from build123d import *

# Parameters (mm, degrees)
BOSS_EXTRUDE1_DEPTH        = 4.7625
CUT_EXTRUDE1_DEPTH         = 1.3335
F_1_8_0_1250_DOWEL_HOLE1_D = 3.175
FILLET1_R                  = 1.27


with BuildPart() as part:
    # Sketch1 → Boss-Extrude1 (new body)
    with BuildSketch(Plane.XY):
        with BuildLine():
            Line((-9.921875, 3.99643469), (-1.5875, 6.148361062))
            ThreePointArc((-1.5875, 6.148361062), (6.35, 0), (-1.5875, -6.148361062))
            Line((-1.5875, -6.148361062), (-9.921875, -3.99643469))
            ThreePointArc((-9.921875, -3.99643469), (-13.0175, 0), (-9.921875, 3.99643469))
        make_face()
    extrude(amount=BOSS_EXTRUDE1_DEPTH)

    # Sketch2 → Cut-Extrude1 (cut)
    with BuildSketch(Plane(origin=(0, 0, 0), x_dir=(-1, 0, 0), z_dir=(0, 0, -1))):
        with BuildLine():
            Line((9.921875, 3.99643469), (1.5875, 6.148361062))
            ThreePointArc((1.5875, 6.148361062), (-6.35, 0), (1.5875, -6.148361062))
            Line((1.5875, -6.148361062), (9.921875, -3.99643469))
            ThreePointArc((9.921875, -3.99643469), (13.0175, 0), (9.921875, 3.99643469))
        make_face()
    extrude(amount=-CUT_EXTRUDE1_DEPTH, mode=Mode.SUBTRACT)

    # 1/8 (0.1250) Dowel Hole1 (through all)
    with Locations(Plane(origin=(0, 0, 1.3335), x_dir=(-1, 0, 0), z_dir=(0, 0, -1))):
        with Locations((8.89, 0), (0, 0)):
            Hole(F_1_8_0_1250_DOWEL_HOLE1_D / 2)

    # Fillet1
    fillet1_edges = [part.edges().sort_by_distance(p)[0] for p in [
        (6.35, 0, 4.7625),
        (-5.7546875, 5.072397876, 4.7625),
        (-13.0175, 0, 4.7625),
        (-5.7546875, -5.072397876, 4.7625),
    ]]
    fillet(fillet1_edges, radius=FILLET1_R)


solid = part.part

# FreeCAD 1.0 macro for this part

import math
import FreeCAD as App
import Part
import Sketcher
Q = App.Units.Quantity


def edges_at(feature, points):
    """Names of the edges that pass closest to the given points."""
    edges = feature.Shape.Edges
    near = lambda p: min(range(len(edges)), key=lambda i: edges[i].distToShape(Part.Vertex(*p))[0])
    return sorted({f"Edge{near(p) + 1}" for p in points})

doc = App.newDocument("Part")
params = doc.addObject("Spreadsheet::Sheet", "Params")
for row, (alias, value) in enumerate([
    ("sketch1_radius", "0.25 in"),
    ("pad1_length", "0.1875 in"),
    ("sketch2_radius", "0.25 in"),
    ("pocket1_length", "0.0525 in"),
    ("sketch3_diameter", "0.125 in"),
    ("hole_diameter", "0.125 in"),
    ("fillet_radius", "0.05 in"),
], start=1):
    params.set(f"A{row}", alias)
    params.set(f"B{row}", "=" + value)
    params.setAlias(f"B{row}", alias)

body = doc.addObject("PartDesign::Body", "Body")

sketch1 = body.newObject("Sketcher::SketchObject", "Sketch")
sketch1.AttachmentSupport = (doc.getObject("XY_Plane"), [""])
sketch1.MapMode = "FlatFace"
sketch1.addGeometry([
    Part.LineSegment(App.Vector(-1.6, 6.1, 0), App.Vector(-9.9, 4, 0)),
    Part.ArcOfCircle(Part.Circle(App.Vector(-8.9, 0, 0), App.Vector(0, 0, 1), 4.1), math.radians(104), math.radians(256)),
    Part.LineSegment(App.Vector(-9.9, -4, 0), App.Vector(-1.6, -6.1, 0)),
    Part.ArcOfCircle(Part.Circle(App.Vector(0, 0, 0), App.Vector(0, 0, 1), 6.3), math.radians(-104), math.radians(104)),
], False)
sketch1.addConstraint([
    Sketcher.Constraint("Tangent", 0, 2, 1, 1),
    Sketcher.Constraint("Tangent", 1, 2, 2, 1),
    Sketcher.Constraint("Tangent", 2, 2, 3, 1),
    Sketcher.Constraint("Tangent", 3, 2, 0, 1),
    Sketcher.Constraint("Coincident", 3, 3, -1, 1),
    Sketcher.Constraint("PointOnObject", 1, 3, -1),
    Sketcher.Constraint("Radius", 3, Q("0.25 in")),
    Sketcher.Constraint("Radius", 1, Q("0.1625 in")),
    Sketcher.Constraint("DistanceX", 1, 3, -1, 1, Q("0.35 in")),
])
sketch1.setExpression("Constraints[6]", "Params.sketch1_radius")
pad1 = body.newObject("PartDesign::Pad", "Pad")
pad1.Profile = sketch1
pad1.setExpression("Length", "Params.pad1_length")

sketch2 = body.newObject("Sketcher::SketchObject", "Sketch001")
sketch2.AttachmentSupport = (doc.getObject("XY_Plane"), [""])
sketch2.MapMode = "FlatFace"
sketch2.addGeometry([
    Part.LineSegment(App.Vector(-9.9, 4, 0), App.Vector(-1.6, 6.1, 0)),
    Part.ArcOfCircle(Part.Circle(App.Vector(0, 0, 0), App.Vector(0, 0, 1), 6.3), math.radians(-104), math.radians(104)),
    Part.LineSegment(App.Vector(-1.6, -6.1, 0), App.Vector(-9.9, -4, 0)),
    Part.ArcOfCircle(Part.Circle(App.Vector(-8.9, 0, 0), App.Vector(0, 0, 1), 4.1), math.radians(104), math.radians(256)),
], False)
sketch2.addConstraint([
    Sketcher.Constraint("Tangent", 0, 2, 1, 2),
    Sketcher.Constraint("Tangent", 1, 1, 2, 1),
    Sketcher.Constraint("Tangent", 2, 2, 3, 2),
    Sketcher.Constraint("Tangent", 3, 1, 0, 1),
    Sketcher.Constraint("Coincident", 1, 3, -1, 1),
    Sketcher.Constraint("PointOnObject", 3, 3, -1),
    Sketcher.Constraint("Radius", 1, Q("0.25 in")),
    Sketcher.Constraint("Radius", 3, Q("0.1625 in")),
    Sketcher.Constraint("DistanceX", 3, 3, -1, 1, Q("0.35 in")),
])
sketch2.setExpression("Constraints[6]", "Params.sketch2_radius")
pocket1 = body.newObject("PartDesign::Pocket", "Pocket")
pocket1.Profile = sketch2
pocket1.setExpression("Length", "Params.pocket1_length")
pocket1.Reversed = True

sketch3 = body.newObject("Sketcher::SketchObject", "Sketch002")
sketch3.AttachmentSupport = (doc.getObject("XY_Plane"), [""])
sketch3.MapMode = "FlatFace"
sketch3.AttachmentOffset = App.Placement(App.Vector(0, 0, 0.0525 * 25.4), App.Rotation())
sketch3.addGeometry([
    Part.Circle(App.Vector(-8.9, 0, 0), App.Vector(0, 0, 1), 1.6),
    Part.Circle(App.Vector(0, 0, 0), App.Vector(0, 0, 1), 1.6),
], False)
sketch3.addConstraint([
    Sketcher.Constraint("Coincident", 1, 3, -1, 1),
    Sketcher.Constraint("Equal", 0, 1),
    Sketcher.Constraint("PointOnObject", 0, 3, -1),
    Sketcher.Constraint("Diameter", 0, Q("0.125 in")),
    Sketcher.Constraint("DistanceX", 0, 3, -1, 1, Q("0.35 in")),
])
sketch3.setExpression("Constraints[3]", "Params.sketch3_diameter")
doc.recompute()
hole = body.newObject("PartDesign::Hole", "Hole")
hole.Profile = sketch3
hole.ThreadType = "None"
hole.setExpression("Diameter", "Params.hole_diameter")
hole.DepthType = "ThroughAll"
hole.Reversed = True
doc.recompute()

fillet = body.newObject("PartDesign::Fillet", "Fillet")
fillet.Base = (hole, edges_at(hole, [
    (6.35, 0, 4.763),
    (-5.755, 5.072, 4.763),
    (-13.018, 0, 4.763),
    (-5.755, -5.072, 4.763),
]))
fillet.setExpression("Radius", "Params.fillet_radius")

doc.recompute()
